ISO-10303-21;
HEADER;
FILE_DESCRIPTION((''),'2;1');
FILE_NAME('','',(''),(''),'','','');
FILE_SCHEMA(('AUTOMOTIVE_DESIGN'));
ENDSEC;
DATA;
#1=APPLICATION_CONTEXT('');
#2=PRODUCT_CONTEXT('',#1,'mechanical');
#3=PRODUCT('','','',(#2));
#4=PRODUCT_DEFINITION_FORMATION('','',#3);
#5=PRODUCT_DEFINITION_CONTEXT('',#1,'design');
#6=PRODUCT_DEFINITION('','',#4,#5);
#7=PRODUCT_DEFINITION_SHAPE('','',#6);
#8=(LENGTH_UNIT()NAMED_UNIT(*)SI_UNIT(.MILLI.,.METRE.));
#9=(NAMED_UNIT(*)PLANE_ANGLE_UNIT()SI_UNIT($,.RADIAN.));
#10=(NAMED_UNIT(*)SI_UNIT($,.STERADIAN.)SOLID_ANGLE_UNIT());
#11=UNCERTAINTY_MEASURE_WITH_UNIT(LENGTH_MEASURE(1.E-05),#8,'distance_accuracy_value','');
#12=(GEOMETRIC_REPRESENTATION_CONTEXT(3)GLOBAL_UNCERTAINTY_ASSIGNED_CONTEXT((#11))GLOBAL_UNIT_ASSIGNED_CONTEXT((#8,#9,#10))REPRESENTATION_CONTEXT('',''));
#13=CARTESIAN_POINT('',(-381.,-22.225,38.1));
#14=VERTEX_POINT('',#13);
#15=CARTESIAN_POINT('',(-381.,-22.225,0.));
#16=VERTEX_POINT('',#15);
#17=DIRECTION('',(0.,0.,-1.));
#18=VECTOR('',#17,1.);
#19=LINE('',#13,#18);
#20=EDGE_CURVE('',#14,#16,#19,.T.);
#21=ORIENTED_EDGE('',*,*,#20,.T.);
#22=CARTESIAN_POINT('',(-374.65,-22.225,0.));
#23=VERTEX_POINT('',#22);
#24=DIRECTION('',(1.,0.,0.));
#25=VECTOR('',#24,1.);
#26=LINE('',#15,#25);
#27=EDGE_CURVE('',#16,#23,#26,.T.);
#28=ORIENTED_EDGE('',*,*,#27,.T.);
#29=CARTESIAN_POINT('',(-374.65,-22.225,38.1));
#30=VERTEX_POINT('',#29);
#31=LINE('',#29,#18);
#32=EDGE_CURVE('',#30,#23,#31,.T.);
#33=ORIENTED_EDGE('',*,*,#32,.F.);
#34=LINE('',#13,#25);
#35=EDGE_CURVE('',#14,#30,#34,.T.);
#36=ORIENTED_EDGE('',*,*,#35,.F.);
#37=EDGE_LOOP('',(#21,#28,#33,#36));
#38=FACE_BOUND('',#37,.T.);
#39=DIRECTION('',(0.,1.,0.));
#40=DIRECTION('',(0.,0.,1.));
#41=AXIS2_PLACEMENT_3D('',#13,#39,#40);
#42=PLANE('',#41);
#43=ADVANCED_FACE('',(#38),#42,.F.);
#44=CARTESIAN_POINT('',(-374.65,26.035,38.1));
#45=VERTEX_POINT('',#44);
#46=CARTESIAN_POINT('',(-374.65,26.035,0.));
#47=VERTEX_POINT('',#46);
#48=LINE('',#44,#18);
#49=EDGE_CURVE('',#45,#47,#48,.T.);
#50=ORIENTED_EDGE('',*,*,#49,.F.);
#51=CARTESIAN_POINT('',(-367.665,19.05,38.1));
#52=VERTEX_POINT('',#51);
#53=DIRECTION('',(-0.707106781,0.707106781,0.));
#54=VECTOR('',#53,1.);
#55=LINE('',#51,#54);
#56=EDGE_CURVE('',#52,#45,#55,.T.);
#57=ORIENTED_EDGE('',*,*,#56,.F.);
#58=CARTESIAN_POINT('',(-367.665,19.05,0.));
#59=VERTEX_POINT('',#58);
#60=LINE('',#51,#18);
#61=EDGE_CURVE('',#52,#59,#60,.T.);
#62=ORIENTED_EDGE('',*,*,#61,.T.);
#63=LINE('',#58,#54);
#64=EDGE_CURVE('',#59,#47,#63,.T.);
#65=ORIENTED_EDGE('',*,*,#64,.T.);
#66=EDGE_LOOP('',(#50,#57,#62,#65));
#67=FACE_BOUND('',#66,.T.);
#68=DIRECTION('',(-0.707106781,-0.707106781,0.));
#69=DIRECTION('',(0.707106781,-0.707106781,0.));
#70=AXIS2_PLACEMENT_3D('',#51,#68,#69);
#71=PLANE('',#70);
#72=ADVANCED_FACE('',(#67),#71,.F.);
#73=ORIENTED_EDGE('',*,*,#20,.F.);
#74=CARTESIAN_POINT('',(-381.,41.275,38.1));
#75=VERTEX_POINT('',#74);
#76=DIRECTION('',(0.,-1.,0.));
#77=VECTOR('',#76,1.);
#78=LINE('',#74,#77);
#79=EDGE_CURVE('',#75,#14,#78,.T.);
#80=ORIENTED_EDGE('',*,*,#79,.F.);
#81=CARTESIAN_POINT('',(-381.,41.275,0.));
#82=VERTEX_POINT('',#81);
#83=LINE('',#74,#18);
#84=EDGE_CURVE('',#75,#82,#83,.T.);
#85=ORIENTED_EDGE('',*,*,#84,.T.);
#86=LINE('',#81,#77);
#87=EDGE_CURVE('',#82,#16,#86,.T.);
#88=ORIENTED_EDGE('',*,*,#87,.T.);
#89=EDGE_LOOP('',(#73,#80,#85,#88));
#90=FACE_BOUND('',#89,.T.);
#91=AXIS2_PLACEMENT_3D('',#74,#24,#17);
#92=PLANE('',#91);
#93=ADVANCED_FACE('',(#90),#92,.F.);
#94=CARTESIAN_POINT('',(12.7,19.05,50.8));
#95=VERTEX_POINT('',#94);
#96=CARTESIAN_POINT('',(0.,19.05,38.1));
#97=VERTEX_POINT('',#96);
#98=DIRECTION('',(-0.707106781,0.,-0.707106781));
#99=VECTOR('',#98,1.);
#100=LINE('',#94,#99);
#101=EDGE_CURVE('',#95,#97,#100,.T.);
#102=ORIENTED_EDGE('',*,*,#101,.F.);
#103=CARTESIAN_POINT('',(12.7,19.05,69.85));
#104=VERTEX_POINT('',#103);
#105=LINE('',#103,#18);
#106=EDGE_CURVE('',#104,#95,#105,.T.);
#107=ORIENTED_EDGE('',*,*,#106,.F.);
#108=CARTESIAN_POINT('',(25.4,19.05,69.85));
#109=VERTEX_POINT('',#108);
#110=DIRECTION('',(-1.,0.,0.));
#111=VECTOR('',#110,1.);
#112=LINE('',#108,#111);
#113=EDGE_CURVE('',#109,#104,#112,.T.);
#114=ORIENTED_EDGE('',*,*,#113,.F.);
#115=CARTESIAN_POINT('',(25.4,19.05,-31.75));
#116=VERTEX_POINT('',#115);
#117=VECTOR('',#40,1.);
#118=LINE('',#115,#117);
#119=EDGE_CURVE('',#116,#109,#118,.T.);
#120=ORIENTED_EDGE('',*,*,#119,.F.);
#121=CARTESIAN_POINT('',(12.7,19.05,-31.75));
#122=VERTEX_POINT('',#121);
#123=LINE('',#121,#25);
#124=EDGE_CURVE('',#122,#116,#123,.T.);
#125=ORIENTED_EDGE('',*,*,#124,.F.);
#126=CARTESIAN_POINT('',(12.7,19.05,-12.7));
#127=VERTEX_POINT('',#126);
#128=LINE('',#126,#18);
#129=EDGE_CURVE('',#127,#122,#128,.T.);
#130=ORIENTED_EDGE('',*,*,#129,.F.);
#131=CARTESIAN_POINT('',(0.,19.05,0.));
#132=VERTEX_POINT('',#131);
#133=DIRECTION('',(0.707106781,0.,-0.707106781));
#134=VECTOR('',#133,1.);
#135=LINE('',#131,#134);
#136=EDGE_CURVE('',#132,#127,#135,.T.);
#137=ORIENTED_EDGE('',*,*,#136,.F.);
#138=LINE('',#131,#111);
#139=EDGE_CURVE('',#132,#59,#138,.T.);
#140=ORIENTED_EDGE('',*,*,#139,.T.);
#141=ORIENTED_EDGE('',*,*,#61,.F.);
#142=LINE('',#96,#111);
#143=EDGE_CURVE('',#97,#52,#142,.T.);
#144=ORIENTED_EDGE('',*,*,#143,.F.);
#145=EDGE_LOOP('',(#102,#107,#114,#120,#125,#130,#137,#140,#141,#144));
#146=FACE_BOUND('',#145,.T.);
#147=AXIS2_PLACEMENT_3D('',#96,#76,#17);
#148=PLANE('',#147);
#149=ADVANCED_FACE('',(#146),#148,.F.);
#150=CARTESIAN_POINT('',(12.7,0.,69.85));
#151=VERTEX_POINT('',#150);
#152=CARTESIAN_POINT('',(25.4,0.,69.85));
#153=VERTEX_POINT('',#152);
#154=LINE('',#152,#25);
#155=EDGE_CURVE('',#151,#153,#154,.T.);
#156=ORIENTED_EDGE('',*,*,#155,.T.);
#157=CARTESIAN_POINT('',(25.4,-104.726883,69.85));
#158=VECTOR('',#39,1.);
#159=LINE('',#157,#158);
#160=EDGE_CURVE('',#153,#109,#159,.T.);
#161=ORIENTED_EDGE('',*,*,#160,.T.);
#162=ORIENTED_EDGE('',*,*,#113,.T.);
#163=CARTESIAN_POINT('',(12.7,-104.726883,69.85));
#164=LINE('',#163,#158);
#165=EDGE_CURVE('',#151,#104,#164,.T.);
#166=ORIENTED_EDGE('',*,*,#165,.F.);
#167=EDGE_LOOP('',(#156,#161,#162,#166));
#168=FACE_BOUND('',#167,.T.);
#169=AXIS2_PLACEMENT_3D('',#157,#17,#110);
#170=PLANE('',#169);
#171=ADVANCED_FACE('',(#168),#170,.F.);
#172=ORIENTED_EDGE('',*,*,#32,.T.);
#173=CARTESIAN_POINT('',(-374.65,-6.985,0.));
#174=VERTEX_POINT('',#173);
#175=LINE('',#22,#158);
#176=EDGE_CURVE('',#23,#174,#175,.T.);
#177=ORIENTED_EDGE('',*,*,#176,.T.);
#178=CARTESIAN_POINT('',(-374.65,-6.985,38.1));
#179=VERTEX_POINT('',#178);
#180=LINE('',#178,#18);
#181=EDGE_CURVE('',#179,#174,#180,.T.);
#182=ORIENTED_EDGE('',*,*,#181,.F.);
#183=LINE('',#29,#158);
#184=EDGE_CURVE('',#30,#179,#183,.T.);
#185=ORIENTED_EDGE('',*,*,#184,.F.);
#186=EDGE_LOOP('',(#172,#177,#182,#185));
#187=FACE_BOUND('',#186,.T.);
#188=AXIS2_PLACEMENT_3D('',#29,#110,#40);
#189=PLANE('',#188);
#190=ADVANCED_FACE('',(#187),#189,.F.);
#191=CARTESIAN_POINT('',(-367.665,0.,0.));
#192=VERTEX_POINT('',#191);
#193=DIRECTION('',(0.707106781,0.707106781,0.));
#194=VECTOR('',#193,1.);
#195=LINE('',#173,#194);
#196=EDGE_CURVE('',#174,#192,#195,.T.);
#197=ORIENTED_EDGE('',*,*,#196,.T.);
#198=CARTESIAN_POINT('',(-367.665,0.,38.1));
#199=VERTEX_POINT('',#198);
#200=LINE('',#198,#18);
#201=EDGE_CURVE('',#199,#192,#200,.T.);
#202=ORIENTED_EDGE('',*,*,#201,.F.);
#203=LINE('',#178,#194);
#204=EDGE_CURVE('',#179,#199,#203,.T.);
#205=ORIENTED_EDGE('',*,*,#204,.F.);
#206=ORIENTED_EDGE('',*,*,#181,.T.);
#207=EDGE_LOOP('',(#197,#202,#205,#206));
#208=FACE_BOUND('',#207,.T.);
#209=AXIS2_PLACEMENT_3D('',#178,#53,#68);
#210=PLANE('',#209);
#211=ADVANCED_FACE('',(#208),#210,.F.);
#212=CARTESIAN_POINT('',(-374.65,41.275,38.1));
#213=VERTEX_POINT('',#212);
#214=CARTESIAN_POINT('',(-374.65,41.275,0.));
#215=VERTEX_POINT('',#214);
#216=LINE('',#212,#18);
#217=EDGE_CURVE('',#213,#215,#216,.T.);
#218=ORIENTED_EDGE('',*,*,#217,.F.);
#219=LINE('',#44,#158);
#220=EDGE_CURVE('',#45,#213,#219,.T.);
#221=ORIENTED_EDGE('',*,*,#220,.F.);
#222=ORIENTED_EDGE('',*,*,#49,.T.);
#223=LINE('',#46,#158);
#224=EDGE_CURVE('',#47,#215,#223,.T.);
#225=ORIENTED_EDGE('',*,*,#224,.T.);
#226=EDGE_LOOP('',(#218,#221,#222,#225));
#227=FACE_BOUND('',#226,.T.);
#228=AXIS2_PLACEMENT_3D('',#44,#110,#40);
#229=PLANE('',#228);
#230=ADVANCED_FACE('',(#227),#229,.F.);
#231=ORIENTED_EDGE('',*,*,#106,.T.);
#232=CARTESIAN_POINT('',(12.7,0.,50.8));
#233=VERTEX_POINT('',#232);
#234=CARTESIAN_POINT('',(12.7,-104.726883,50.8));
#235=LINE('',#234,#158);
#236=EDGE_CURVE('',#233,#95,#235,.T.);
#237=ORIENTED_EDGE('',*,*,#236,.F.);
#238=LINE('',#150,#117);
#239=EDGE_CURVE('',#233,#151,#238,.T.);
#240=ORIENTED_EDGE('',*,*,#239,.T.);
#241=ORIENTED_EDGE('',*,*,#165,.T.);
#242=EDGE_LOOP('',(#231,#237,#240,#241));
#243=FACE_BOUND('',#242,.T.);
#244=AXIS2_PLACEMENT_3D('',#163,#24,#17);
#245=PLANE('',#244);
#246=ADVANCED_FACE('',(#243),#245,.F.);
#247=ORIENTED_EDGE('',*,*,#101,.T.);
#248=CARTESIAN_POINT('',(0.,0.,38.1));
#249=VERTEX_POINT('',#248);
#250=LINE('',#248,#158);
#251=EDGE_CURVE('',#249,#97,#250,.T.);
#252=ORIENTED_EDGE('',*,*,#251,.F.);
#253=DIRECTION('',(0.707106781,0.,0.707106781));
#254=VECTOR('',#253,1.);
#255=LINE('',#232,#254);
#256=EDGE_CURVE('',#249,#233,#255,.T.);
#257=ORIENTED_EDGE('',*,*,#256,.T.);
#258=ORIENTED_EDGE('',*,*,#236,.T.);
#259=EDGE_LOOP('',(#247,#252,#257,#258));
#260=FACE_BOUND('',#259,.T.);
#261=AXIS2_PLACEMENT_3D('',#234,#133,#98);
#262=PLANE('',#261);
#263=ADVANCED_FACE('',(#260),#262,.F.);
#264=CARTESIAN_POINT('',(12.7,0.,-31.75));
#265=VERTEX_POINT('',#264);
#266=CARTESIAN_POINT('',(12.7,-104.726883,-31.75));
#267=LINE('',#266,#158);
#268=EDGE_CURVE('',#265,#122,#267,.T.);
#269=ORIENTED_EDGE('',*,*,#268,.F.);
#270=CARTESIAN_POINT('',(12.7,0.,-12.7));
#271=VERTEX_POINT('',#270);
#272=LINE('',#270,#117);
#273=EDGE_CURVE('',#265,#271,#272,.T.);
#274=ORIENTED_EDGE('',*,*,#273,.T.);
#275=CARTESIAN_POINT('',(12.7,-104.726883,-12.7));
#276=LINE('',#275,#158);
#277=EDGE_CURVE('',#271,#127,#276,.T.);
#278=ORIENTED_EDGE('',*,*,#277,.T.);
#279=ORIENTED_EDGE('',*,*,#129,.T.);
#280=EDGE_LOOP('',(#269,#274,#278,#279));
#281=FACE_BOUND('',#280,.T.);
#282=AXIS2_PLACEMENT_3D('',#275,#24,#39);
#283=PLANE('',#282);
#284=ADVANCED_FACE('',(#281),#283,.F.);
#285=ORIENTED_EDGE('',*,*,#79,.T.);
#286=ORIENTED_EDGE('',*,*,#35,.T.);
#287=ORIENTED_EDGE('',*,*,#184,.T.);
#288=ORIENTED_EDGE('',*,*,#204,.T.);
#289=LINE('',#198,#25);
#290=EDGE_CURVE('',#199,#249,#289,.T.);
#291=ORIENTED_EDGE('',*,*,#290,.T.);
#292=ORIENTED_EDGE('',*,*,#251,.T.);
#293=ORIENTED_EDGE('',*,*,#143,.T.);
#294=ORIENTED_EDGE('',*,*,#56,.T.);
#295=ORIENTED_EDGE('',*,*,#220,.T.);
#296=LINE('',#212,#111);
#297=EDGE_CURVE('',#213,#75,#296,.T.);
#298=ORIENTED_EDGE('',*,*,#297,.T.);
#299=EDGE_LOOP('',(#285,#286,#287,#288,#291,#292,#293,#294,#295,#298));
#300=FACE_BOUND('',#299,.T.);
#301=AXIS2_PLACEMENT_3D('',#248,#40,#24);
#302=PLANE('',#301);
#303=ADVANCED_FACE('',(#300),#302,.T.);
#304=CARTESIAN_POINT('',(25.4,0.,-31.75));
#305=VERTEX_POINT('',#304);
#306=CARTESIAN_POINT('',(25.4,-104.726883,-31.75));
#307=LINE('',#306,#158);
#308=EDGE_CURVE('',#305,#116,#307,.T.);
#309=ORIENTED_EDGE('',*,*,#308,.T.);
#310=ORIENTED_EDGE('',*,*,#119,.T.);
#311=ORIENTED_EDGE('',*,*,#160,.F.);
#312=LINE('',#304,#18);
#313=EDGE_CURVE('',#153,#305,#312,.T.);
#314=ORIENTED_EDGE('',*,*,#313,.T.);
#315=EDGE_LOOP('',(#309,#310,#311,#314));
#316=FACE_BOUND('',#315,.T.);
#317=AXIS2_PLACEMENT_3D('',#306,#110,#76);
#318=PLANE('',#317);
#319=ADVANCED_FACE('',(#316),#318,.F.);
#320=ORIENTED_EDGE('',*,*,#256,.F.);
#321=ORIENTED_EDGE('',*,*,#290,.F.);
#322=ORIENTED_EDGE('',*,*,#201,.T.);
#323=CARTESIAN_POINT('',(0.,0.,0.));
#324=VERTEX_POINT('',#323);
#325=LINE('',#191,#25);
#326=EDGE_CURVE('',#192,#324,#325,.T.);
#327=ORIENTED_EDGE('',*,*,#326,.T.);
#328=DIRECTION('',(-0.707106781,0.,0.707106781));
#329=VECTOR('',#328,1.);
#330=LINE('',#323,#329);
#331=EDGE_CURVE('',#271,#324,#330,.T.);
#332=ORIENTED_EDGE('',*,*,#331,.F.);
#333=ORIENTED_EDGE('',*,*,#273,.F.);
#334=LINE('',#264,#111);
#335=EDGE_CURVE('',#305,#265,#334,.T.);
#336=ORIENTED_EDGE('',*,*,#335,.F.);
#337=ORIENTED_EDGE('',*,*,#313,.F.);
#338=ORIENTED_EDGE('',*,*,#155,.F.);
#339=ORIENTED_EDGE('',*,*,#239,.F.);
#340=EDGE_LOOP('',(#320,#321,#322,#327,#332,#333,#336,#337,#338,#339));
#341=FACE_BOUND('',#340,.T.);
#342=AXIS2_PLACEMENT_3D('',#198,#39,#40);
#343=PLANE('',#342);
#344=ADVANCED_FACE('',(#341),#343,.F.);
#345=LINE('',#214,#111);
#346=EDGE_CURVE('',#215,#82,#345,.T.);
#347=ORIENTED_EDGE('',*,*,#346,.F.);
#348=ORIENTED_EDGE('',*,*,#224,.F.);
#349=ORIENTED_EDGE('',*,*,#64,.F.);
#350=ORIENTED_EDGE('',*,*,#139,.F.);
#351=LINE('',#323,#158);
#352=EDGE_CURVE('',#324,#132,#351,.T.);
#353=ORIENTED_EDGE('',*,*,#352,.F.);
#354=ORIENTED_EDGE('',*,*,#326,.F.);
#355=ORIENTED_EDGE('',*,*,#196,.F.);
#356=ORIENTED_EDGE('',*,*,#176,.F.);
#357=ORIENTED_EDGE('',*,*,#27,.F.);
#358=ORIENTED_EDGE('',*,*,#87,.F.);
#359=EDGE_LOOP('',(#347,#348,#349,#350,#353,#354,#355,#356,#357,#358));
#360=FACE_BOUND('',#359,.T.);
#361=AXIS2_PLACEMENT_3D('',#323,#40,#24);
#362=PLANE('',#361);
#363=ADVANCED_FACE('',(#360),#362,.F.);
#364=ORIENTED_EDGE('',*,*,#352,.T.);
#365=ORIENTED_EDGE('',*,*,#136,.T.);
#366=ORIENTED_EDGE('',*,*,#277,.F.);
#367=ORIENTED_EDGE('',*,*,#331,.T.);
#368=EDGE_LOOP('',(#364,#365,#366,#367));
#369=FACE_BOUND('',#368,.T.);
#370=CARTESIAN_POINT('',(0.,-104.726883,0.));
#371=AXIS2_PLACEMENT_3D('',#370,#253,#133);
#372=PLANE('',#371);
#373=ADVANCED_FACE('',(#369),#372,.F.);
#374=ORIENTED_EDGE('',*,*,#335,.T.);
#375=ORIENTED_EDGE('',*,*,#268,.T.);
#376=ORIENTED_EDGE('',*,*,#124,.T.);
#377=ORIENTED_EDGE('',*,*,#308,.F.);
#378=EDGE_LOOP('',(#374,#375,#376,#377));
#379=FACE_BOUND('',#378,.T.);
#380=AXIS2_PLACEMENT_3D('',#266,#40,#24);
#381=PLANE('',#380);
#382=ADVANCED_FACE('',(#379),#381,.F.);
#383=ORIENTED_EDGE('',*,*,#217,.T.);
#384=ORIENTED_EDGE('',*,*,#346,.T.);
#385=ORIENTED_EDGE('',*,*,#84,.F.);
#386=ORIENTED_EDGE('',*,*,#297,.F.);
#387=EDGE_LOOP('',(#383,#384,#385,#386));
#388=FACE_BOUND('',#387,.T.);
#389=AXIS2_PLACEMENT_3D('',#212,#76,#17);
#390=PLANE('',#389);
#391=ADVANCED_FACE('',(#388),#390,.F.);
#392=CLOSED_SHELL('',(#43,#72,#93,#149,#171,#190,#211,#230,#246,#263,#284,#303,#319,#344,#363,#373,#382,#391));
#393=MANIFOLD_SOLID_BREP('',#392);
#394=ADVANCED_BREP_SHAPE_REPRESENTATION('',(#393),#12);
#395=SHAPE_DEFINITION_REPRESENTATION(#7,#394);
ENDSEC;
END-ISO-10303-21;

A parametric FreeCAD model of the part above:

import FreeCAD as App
import Part
import Sketcher

V = App.Vector
Q = App.Units.Quantity

doc = App.newDocument("Part")
body = doc.addObject("PartDesign::Body", "Body")

sketch1 = body.newObject("Sketcher::SketchObject", "Sketch")
sketch1.AttachmentSupport = (doc.getObject("XY_Plane"), [""])
sketch1.MapMode = "FlatFace"
sketch1.addGeometry([
    Part.LineSegment(V(0, 0, 0), V(0, 19.05, 0)),
    Part.LineSegment(V(0, 19.05, 0), V(-367.665, 19.05, 0)),
    Part.LineSegment(V(-367.665, 19.05, 0), V(-374.65, 26.035, 0)),
    Part.LineSegment(V(-374.65, 26.035, 0), V(-374.65, 41.275, 0)),
    Part.LineSegment(V(-374.65, 41.275, 0), V(-381, 41.275, 0)),
    Part.LineSegment(V(-381, 41.275, 0), V(-381, -22.225, 0)),
    Part.LineSegment(V(-381, -22.225, 0), V(-374.65, -22.225, 0)),
    Part.LineSegment(V(-374.65, -22.225, 0), V(-374.65, -6.985, 0)),
    Part.LineSegment(V(-374.65, -6.985, 0), V(-367.665, 0, 0)),
    Part.LineSegment(V(-367.665, 0, 0), V(0, 0, 0)),
], False)
sketch1.addConstraint([
    Sketcher.Constraint("Coincident", 0, 2, 1, 1),
    Sketcher.Constraint("Coincident", 1, 2, 2, 1),
    Sketcher.Constraint("Coincident", 2, 2, 3, 1),
    Sketcher.Constraint("Coincident", 3, 2, 4, 1),
    Sketcher.Constraint("Coincident", 4, 2, 5, 1),
    Sketcher.Constraint("Coincident", 5, 2, 6, 1),
    Sketcher.Constraint("Coincident", 6, 2, 7, 1),
    Sketcher.Constraint("Coincident", 7, 2, 8, 1),
    Sketcher.Constraint("Coincident", 8, 2, 9, 1),
    Sketcher.Constraint("Coincident", 9, 2, 0, 1),
    Sketcher.Constraint("Vertical", 0),
    Sketcher.Constraint("Horizontal", 1),
    Sketcher.Constraint("Vertical", 3),
    Sketcher.Constraint("Horizontal", 4),
    Sketcher.Constraint("Vertical", 5),
    Sketcher.Constraint("Horizontal", 6),
    Sketcher.Constraint("Vertical", 7),
    Sketcher.Constraint("Horizontal", 9),
    Sketcher.Constraint("Coincident", 9, 2, -1, 1),
    Sketcher.Constraint("Perpendicular", 2, 8),
    Sketcher.Constraint("Vertical", 3, 2, 6, 2),
    Sketcher.Constraint("Vertical", 1, 2, 8, 2),
    Sketcher.Constraint("Equal", 3, 7),
    Sketcher.Constraint("Equal", 2, 8),
    Sketcher.Constraint("DistanceY", 3, 1, 3, 2, Q("0.6 in")),
    Sketcher.Constraint("DistanceY", 5, 2, 5, 1, Q("2.5 in")),
    Sketcher.Constraint("DistanceX", 4, 2, -1, 1, Q("15 in")),
    Sketcher.Constraint("DistanceX", 4, 2, 4, 1, Q("0.25 in")),
    Sketcher.Constraint("DistanceY", 0, 1, 0, 2, Q("0.75 in")),
])
pad1 = body.newObject("PartDesign::Pad", "Pad")
pad1.Profile = sketch1
pad1.Length = Q("1.5 in")

sketch2 = body.newObject("Sketcher::SketchObject", "Sketch001")
sketch2.AttachmentSupport = (doc.getObject("XZ_Plane"), [""])
sketch2.MapMode = "FlatFace"
sketch2.AttachmentOffset = App.Placement(V(0, 0, -0.75 * 25.4), App.Rotation())
sketch2.addGeometry([
    Part.LineSegment(V(12.7, -12.7, 0), V(0, 0, 0)),
    Part.LineSegment(V(0, 0, 0), V(0, 38.1, 0)),
    Part.LineSegment(V(0, 38.1, 0), V(12.7, 50.8, 0)),
    Part.LineSegment(V(12.7, 50.8, 0), V(12.7, 69.85, 0)),
    Part.LineSegment(V(12.7, 69.85, 0), V(25.4, 69.85, 0)),
    Part.LineSegment(V(25.4, 69.85, 0), V(25.4, -31.75, 0)),
    Part.LineSegment(V(25.4, -31.75, 0), V(12.7, -31.75, 0)),
    Part.LineSegment(V(12.7, -31.75, 0), V(12.7, -12.7, 0)),
], False)
sketch2.addConstraint([
    Sketcher.Constraint("Coincident", 0, 2, 1, 1),
    Sketcher.Constraint("Coincident", 1, 2, 2, 1),
    Sketcher.Constraint("Coincident", 2, 2, 3, 1),
    Sketcher.Constraint("Coincident", 3, 2, 4, 1),
    Sketcher.Constraint("Coincident", 4, 2, 5, 1),
    Sketcher.Constraint("Coincident", 5, 2, 6, 1),
    Sketcher.Constraint("Coincident", 6, 2, 7, 1),
    Sketcher.Constraint("Coincident", 7, 2, 0, 1),
    Sketcher.Constraint("Vertical", 1),
    Sketcher.Constraint("Vertical", 3),
    Sketcher.Constraint("Horizontal", 4),
    Sketcher.Constraint("Vertical", 5),
    Sketcher.Constraint("Horizontal", 6),
    Sketcher.Constraint("Vertical", 7),
    Sketcher.Constraint("Coincident", 0, 2, -1, 1),
    Sketcher.Constraint("Perpendicular", 0, 2),
    Sketcher.Constraint("Vertical", 3, 2, 6, 2),
    Sketcher.Constraint("Equal", 3, 7),
    Sketcher.Constraint("Equal", 0, 2),
    Sketcher.Constraint("DistanceY", 5, 2, 5, 1, Q("4 in")),
    Sketcher.Constraint("DistanceX", 4, 1, 4, 2, Q("0.5 in")),
    Sketcher.Constraint("DistanceY", 1, 1, 1, 2, Q("1.5 in")),
    Sketcher.Constraint("DistanceY", -1, 1, 2, 2, Q("2 in")),
])
pad2 = body.newObject("PartDesign::Pad", "Pad001")
pad2.Profile = sketch2
pad2.Length = Q("0.75 in")

doc.recompute()
